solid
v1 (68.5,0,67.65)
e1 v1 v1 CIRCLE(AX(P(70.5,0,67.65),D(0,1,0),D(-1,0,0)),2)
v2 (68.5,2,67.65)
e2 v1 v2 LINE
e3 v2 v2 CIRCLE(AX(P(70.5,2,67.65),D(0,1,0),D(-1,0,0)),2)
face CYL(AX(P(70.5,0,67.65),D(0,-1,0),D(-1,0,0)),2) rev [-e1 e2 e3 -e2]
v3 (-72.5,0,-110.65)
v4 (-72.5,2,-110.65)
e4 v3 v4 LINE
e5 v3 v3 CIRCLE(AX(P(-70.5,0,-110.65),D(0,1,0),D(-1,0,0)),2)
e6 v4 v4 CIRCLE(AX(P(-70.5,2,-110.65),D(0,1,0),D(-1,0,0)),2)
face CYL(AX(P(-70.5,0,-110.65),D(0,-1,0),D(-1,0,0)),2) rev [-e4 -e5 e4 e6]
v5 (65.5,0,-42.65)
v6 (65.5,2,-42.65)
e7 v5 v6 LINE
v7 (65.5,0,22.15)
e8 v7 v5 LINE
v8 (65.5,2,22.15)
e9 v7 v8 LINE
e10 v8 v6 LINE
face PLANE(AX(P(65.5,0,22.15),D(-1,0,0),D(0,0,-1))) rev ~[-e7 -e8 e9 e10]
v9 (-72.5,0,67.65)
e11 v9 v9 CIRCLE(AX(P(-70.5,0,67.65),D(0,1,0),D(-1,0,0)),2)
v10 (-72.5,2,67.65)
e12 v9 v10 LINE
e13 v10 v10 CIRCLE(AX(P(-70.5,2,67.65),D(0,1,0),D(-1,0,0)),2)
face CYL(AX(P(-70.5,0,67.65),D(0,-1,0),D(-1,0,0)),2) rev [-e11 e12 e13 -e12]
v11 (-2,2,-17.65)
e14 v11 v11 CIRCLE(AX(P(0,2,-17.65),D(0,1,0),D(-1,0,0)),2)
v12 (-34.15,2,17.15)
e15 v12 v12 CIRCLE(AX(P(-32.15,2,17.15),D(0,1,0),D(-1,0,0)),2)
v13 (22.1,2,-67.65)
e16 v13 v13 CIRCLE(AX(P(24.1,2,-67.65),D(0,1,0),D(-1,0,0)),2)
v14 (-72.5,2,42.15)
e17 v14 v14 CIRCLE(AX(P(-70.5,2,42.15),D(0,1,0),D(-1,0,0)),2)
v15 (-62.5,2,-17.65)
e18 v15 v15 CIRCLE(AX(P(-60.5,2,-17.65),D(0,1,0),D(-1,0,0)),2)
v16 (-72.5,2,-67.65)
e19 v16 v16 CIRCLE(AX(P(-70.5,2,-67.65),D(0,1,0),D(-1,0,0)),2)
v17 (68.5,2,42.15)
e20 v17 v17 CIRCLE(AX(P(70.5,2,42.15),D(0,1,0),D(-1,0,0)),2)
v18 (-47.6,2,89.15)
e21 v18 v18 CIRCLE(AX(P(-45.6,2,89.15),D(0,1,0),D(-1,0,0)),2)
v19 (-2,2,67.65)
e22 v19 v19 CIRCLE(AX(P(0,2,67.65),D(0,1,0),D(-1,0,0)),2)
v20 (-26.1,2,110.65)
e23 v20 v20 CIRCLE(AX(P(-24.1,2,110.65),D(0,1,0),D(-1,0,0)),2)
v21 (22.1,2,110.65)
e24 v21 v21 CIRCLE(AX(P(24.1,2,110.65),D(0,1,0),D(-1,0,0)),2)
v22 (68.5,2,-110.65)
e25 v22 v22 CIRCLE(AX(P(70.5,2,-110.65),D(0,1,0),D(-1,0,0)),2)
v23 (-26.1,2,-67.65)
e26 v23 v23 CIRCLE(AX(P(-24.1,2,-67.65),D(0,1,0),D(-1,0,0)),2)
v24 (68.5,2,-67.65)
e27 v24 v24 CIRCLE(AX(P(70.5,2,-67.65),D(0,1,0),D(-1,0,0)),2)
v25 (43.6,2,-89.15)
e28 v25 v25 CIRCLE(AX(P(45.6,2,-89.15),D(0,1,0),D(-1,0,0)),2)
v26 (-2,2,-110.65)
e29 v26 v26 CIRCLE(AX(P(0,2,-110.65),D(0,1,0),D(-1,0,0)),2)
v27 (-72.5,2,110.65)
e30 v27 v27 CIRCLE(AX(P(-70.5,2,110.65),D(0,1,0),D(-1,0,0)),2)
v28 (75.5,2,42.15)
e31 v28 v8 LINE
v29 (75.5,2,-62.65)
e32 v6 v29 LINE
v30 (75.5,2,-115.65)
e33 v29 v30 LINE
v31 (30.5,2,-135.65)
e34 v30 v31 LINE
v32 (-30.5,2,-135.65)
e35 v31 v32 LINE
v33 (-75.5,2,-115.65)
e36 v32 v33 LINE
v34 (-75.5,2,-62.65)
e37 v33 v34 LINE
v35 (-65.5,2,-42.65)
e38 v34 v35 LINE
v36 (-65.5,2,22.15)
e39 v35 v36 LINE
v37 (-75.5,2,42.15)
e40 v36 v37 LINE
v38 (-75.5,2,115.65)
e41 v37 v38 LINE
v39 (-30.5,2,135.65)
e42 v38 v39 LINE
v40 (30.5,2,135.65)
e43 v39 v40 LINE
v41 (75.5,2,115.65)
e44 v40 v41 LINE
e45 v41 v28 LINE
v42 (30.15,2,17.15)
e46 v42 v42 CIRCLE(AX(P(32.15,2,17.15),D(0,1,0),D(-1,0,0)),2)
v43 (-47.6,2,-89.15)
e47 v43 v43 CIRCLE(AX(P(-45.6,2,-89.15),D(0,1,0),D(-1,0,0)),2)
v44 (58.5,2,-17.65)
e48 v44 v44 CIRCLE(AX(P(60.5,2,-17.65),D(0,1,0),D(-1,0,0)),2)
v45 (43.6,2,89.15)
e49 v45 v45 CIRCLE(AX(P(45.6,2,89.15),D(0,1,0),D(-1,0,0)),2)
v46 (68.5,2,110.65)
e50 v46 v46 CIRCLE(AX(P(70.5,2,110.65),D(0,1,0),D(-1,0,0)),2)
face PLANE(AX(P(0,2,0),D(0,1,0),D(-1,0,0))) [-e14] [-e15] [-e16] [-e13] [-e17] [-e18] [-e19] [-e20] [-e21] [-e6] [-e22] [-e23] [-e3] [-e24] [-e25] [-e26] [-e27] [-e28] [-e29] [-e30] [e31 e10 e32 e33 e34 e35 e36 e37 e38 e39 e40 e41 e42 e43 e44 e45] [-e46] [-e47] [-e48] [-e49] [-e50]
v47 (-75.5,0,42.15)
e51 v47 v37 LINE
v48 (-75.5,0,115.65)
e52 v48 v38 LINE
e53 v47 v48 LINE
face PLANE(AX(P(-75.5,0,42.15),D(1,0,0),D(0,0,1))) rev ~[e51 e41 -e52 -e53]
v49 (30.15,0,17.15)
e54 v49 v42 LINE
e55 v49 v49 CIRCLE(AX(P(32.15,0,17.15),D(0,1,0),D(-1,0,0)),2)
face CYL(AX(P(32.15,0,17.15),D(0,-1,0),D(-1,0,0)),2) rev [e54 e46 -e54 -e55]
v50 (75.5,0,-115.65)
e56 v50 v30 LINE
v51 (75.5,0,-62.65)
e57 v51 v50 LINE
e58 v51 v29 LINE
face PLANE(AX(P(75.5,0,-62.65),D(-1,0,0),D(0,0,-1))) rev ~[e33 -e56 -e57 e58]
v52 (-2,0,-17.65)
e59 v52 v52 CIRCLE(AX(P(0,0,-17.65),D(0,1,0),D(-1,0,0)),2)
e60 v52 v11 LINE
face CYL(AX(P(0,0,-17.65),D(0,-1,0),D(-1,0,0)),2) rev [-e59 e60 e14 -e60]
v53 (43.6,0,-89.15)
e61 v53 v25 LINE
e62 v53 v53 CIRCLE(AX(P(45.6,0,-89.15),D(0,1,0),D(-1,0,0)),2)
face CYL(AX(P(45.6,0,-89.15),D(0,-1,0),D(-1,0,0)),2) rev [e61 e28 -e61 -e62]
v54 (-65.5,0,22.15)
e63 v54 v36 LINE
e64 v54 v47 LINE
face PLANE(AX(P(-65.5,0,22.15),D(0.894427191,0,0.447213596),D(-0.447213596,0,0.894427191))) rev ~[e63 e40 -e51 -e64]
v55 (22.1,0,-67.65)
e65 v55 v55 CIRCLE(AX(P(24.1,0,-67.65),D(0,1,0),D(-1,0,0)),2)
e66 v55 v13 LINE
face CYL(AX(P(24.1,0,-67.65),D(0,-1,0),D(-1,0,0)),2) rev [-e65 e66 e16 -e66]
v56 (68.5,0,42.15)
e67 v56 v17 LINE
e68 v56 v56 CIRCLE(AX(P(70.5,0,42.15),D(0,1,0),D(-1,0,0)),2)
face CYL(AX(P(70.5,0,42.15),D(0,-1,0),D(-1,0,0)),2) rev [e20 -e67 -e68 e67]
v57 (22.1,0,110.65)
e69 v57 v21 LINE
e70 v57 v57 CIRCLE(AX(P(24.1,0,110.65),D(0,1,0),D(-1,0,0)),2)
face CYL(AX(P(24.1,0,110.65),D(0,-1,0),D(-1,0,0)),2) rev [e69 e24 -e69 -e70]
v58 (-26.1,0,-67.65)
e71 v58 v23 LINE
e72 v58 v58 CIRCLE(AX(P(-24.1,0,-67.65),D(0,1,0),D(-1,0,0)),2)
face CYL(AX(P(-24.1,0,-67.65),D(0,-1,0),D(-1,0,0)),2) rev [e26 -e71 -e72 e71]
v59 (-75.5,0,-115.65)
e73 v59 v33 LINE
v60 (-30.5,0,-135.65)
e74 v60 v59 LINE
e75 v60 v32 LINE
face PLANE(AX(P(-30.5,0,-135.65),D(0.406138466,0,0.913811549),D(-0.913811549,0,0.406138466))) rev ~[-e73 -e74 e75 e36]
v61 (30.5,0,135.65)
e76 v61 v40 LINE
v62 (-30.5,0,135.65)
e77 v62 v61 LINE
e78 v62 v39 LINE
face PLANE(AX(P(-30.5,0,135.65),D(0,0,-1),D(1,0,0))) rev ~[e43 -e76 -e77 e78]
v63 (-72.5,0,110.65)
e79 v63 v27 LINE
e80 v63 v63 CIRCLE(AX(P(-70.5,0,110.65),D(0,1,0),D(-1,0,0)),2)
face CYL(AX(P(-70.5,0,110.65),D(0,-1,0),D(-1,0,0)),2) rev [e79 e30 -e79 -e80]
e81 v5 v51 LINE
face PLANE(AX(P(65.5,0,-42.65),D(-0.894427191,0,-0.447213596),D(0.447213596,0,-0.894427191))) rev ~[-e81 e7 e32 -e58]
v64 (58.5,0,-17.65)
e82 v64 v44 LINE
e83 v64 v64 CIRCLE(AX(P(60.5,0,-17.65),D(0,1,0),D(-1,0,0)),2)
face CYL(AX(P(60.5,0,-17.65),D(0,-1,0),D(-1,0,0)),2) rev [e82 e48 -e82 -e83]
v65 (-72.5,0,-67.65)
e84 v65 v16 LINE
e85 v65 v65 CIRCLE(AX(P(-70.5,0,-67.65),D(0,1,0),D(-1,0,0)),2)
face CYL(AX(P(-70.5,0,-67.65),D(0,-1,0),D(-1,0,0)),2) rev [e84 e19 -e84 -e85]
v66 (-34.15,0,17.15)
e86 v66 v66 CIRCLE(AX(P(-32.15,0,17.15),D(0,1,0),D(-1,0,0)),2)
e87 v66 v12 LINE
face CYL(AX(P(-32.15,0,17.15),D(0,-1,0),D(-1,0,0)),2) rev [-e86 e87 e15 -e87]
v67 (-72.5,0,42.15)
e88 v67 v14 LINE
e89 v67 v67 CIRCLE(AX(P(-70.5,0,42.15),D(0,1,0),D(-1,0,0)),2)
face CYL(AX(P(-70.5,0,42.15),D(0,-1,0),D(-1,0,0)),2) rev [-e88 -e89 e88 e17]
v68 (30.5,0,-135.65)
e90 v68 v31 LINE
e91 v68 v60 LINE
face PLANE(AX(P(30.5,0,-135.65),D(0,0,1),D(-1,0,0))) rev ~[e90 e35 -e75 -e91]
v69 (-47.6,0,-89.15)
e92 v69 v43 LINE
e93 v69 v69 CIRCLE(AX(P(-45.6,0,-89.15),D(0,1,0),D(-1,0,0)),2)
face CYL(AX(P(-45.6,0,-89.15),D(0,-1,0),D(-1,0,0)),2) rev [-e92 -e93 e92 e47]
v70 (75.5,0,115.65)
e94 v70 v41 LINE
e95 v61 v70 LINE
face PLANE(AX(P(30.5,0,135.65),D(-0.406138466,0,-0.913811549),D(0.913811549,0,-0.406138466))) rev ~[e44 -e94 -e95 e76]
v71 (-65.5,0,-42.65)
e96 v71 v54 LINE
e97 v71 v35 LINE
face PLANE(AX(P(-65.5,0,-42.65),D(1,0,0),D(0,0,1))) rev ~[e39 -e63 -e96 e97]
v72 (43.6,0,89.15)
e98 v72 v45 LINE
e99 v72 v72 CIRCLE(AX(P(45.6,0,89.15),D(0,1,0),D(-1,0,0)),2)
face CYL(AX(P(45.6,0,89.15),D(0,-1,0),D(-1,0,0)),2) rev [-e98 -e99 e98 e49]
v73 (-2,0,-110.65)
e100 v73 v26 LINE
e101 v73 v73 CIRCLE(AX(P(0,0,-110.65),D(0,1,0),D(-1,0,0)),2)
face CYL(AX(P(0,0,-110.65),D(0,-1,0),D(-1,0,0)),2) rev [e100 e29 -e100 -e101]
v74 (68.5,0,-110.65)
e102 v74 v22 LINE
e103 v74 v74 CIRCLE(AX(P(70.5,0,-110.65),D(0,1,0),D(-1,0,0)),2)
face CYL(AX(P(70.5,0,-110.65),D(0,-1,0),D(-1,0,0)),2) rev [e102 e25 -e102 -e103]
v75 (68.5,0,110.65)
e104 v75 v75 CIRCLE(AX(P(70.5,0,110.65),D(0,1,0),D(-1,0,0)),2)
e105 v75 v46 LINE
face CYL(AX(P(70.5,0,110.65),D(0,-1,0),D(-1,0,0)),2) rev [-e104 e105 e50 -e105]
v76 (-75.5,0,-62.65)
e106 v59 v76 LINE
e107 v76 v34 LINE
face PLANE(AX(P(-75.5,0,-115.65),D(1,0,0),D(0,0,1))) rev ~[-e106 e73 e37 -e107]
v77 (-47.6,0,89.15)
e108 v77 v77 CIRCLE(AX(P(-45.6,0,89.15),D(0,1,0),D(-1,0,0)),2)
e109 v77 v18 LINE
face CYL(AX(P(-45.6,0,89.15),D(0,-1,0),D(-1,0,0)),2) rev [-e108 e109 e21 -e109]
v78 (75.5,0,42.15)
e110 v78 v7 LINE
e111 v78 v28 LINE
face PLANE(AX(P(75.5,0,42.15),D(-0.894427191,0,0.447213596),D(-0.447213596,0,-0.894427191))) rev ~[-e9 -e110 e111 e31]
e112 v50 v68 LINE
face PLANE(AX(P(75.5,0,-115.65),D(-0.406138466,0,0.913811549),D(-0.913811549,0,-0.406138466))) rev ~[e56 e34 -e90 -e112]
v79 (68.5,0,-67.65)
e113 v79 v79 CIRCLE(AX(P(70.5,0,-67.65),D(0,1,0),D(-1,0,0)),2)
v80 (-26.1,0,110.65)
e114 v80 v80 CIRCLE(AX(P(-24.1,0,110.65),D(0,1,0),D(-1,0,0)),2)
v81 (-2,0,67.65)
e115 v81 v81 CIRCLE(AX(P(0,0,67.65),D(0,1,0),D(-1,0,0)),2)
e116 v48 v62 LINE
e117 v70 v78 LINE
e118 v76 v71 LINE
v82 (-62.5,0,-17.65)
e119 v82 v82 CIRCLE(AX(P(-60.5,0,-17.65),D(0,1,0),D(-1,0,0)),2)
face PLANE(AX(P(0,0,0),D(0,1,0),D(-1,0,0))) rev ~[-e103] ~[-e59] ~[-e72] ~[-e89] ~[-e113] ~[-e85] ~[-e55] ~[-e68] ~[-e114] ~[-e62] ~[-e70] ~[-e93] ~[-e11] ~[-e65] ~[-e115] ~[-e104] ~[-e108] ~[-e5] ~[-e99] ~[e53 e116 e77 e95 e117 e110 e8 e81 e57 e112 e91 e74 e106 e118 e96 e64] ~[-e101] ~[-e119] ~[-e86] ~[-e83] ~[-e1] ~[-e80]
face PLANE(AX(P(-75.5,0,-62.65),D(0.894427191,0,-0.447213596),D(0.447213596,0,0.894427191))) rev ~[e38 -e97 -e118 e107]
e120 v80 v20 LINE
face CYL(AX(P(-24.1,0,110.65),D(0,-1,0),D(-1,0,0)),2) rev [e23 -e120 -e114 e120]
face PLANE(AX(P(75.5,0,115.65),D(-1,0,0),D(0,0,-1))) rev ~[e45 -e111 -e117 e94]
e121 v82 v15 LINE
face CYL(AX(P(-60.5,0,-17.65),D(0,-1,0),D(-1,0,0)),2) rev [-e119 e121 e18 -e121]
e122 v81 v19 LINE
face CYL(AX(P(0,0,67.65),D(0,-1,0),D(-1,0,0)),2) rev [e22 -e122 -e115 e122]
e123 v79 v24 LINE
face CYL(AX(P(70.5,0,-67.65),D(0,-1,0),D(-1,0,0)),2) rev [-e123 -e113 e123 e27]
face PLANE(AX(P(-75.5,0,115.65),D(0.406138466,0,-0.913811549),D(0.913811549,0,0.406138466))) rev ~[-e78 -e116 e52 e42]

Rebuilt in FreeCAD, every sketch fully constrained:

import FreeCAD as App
import Part
import Sketcher
Q = App.Units.Quantity

doc = App.newDocument("Part")
body = doc.addObject("PartDesign::Body", "Body")

sketch1 = body.newObject("Sketcher::SketchObject", "Sketch")
sketch1.AttachmentSupport = (doc.getObject("XZ_Plane"), [""])
sketch1.MapMode = "FlatFace"
sketch1.addGeometry([
    Part.LineSegment(App.Vector(-30.5, -135.7, 0), App.Vector(-75.5, -115.7, 0)),
    Part.LineSegment(App.Vector(-75.5, -115.7, 0), App.Vector(-75.5, -62.6, 0)),
    Part.LineSegment(App.Vector(-75.5, -62.6, 0), App.Vector(-65.5, -42.6, 0)),
    Part.LineSegment(App.Vector(-65.5, -42.6, 0), App.Vector(-65.5, 22.1, 0)),
    Part.LineSegment(App.Vector(-65.5, 22.1, 0), App.Vector(-75.5, 42.1, 0)),
    Part.LineSegment(App.Vector(-75.5, 42.1, 0), App.Vector(-75.5, 115.7, 0)),
    Part.LineSegment(App.Vector(-75.5, 115.7, 0), App.Vector(-30.5, 135.7, 0)),
    Part.LineSegment(App.Vector(-30.5, 135.7, 0), App.Vector(30.5, 135.7, 0)),
    Part.LineSegment(App.Vector(30.5, 135.7, 0), App.Vector(75.5, 115.7, 0)),
    Part.LineSegment(App.Vector(75.5, 115.7, 0), App.Vector(75.5, 42.1, 0)),
    Part.LineSegment(App.Vector(75.5, 42.1, 0), App.Vector(65.5, 22.1, 0)),
    Part.LineSegment(App.Vector(65.5, 22.1, 0), App.Vector(65.5, -42.6, 0)),
    Part.LineSegment(App.Vector(65.5, -42.6, 0), App.Vector(75.5, -62.6, 0)),
    Part.LineSegment(App.Vector(75.5, -62.6, 0), App.Vector(75.5, -115.7, 0)),
    Part.LineSegment(App.Vector(75.5, -115.7, 0), App.Vector(30.5, -135.7, 0)),
    Part.LineSegment(App.Vector(30.5, -135.7, 0), App.Vector(-30.5, -135.7, 0)),
    Part.Circle(App.Vector(70.5, -110.7, 0), App.Vector(0, 0, 1), 2),
    Part.Circle(App.Vector(45.6, -89.2, 0), App.Vector(0, 0, 1), 2),
    Part.Circle(App.Vector(70.5, -67.7, 0), App.Vector(0, 0, 1), 2),
    Part.Circle(App.Vector(60.5, -17.6, 0), App.Vector(0, 0, 1), 2),
    Part.Circle(App.Vector(24.1, -67.7, 0), App.Vector(0, 0, 1), 2),
    Part.Circle(App.Vector(0, -110.7, 0), App.Vector(0, 0, 1), 2),
    Part.Circle(App.Vector(-70.5, -110.7, 0), App.Vector(0, 0, 1), 2),
    Part.Circle(App.Vector(-45.6, -89.2, 0), App.Vector(0, 0, 1), 2),
    Part.Circle(App.Vector(-24.1, -67.7, 0), App.Vector(0, 0, 1), 2),
    Part.Circle(App.Vector(0, -17.6, 0), App.Vector(0, 0, 1), 2),
    Part.Circle(App.Vector(-70.5, -67.7, 0), App.Vector(0, 0, 1), 2),
    Part.Circle(App.Vector(-60.5, -17.6, 0), App.Vector(0, 0, 1), 2),
    Part.Circle(App.Vector(70.5, 42.1, 0), App.Vector(0, 0, 1), 2),
    Part.Circle(App.Vector(70.5, 67.7, 0), App.Vector(0, 0, 1), 2),
    Part.Circle(App.Vector(32.1, 17.1, 0), App.Vector(0, 0, 1), 2),
    Part.Circle(App.Vector(45.6, 89.2, 0), App.Vector(0, 0, 1), 2),
    Part.Circle(App.Vector(70.5, 110.7, 0), App.Vector(0, 0, 1), 2),
    Part.Circle(App.Vector(24.1, 110.7, 0), App.Vector(0, 0, 1), 2),
    Part.Circle(App.Vector(-32.1, 17.1, 0), App.Vector(0, 0, 1), 2),
    Part.Circle(App.Vector(0, 67.7, 0), App.Vector(0, 0, 1), 2),
    Part.Circle(App.Vector(-70.5, 42.1, 0), App.Vector(0, 0, 1), 2),
    Part.Circle(App.Vector(-70.5, 67.7, 0), App.Vector(0, 0, 1), 2),
    Part.Circle(App.Vector(-24.1, 110.7, 0), App.Vector(0, 0, 1), 2),
    Part.Circle(App.Vector(-45.6, 89.2, 0), App.Vector(0, 0, 1), 2),
    Part.Circle(App.Vector(-70.5, 110.7, 0), App.Vector(0, 0, 1), 2),
], False)
sketch1.addConstraint([
    Sketcher.Constraint("Coincident", 0, 2, 1, 1),
    Sketcher.Constraint("Coincident", 1, 2, 2, 1),
    Sketcher.Constraint("Coincident", 2, 2, 3, 1),
    Sketcher.Constraint("Coincident", 3, 2, 4, 1),
    Sketcher.Constraint("Coincident", 4, 2, 5, 1),
    Sketcher.Constraint("Coincident", 5, 2, 6, 1),
    Sketcher.Constraint("Coincident", 6, 2, 7, 1),
    Sketcher.Constraint("Coincident", 7, 2, 8, 1),
    Sketcher.Constraint("Coincident", 8, 2, 9, 1),
    Sketcher.Constraint("Coincident", 9, 2, 10, 1),
    Sketcher.Constraint("Coincident", 10, 2, 11, 1),
    Sketcher.Constraint("Coincident", 11, 2, 12, 1),
    Sketcher.Constraint("Coincident", 12, 2, 13, 1),
    Sketcher.Constraint("Coincident", 13, 2, 14, 1),
    Sketcher.Constraint("Coincident", 14, 2, 15, 1),
    Sketcher.Constraint("Coincident", 15, 2, 0, 1),
    Sketcher.Constraint("Vertical", 1),
    Sketcher.Constraint("Vertical", 3),
    Sketcher.Constraint("Vertical", 5),
    Sketcher.Constraint("Horizontal", 7),
    Sketcher.Constraint("Vertical", 9),
    Sketcher.Constraint("Vertical", 11),
    Sketcher.Constraint("Vertical", 13),
    Sketcher.Constraint("Horizontal", 15),
    Sketcher.Constraint("Equal", 16, 17),
    Sketcher.Constraint("Equal", 17, 18),
    Sketcher.Constraint("Equal", 18, 19),
    Sketcher.Constraint("Equal", 19, 20),
    Sketcher.Constraint("Equal", 20, 21),
    Sketcher.Constraint("Equal", 21, 22),
    Sketcher.Constraint("Equal", 22, 23),
    Sketcher.Constraint("Equal", 23, 24),
    Sketcher.Constraint("Equal", 24, 25),
    Sketcher.Constraint("Equal", 25, 26),
    Sketcher.Constraint("Equal", 26, 27),
    Sketcher.Constraint("Equal", 27, 28),
    Sketcher.Constraint("Equal", 28, 29),
    Sketcher.Constraint("Equal", 29, 30),
    Sketcher.Constraint("Equal", 30, 31),
    Sketcher.Constraint("Equal", 31, 32),
    Sketcher.Constraint("Equal", 32, 33),
    Sketcher.Constraint("Equal", 33, 34),
    Sketcher.Constraint("Equal", 34, 35),
    Sketcher.Constraint("Equal", 35, 36),
    Sketcher.Constraint("Equal", 36, 37),
    Sketcher.Constraint("Equal", 37, 38),
    Sketcher.Constraint("Equal", 38, 39),
    Sketcher.Constraint("Equal", 39, 40),
    Sketcher.Constraint("Symmetric", 26, 3, 29, 3, -1, 1),
    Sketcher.Constraint("Symmetric", 23, 3, 31, 3, -1, 1),
    Sketcher.Constraint("Symmetric", 22, 3, 32, 3, -1, 1),
    Sketcher.Constraint("Symmetric", 18, 3, 37, 3, -1, 1),
    Sketcher.Constraint("Symmetric", 17, 3, 39, 3, -1, 1),
    Sketcher.Constraint("Symmetric", 16, 3, 40, 3, -1, 1),
    Sketcher.Constraint("Symmetric", 0, 2, 8, 2, -1, 1),
    Sketcher.Constraint("Symmetric", 5, 2, 13, 2, -1, 1),
    Sketcher.Constraint("Symmetric", 6, 2, 14, 2, -1, 1),
    Sketcher.Constraint("Symmetric", 16, 3, 22, 3, -2),
    Sketcher.Constraint("Symmetric", 17, 3, 23, 3, -2),
    Sketcher.Constraint("Symmetric", 20, 3, 24, 3, -2),
    Sketcher.Constraint("Symmetric", 18, 3, 26, 3, -2),
    Sketcher.Constraint("Symmetric", 19, 3, 27, 3, -2),
    Sketcher.Constraint("Symmetric", 30, 3, 34, 3, -2),
    Sketcher.Constraint("Symmetric", 28, 3, 36, 3, -2),
    Sketcher.Constraint("Symmetric", 33, 3, 38, 3, -2),
    Sketcher.Constraint("Symmetric", 5, 2, 8, 2, -2),
    Sketcher.Constraint("Symmetric", 3, 2, 10, 2, -2),
    Sketcher.Constraint("PointOnObject", 21, 3, -2),
    Sketcher.Constraint("PointOnObject", 25, 3, -2),
    Sketcher.Constraint("PointOnObject", 35, 3, -2),
    Sketcher.Constraint("Parallel", 0, 8),
    Sketcher.Constraint("Parallel", 2, 10),
    Sketcher.Constraint("Parallel", 4, 12),
    Sketcher.Constraint("Horizontal", 18, 3, 20, 3),
    Sketcher.Constraint("Horizontal", 16, 3, 21, 3),
    Sketcher.Constraint("Horizontal", 19, 3, 25, 3),
    Sketcher.Constraint("Horizontal", 32, 3, 33, 3),
    Sketcher.Constraint("Horizontal", 29, 3, 35, 3),
    Sketcher.Constraint("Horizontal", 36, 3, 4, 2),
    Sketcher.Constraint("Horizontal", 4, 2, 9, 2),
    Sketcher.Constraint("Horizontal", 2, 2, 11, 2),
    Sketcher.Constraint("Vertical", 16, 3, 18, 3),
    Sketcher.Constraint("Vertical", 18, 3, 28, 3),
    Sketcher.Constraint("Vertical", 20, 3, 33, 3),
    Sketcher.Constraint("Vertical", 7, 2, 14, 2),
    Sketcher.Constraint("Diameter", 16, Q("4 mm")),
    Sketcher.Constraint("DistanceX", 7, 1, 7, 2, Q("61 mm")),
    Sketcher.Constraint("DistanceY", 1, 1, 1, 2, Q("53 mm")),
    Sketcher.Constraint("DistanceY", 3, 1, 3, 2, Q("64.8 mm")),
    Sketcher.Constraint("DistanceY", 5, 1, 5, 2, Q("73.5 mm")),
    Sketcher.Constraint("DistanceY", 16, 3, 18, 3, Q("43 mm")),
    Sketcher.Constraint("DistanceX", 19, 3, 18, 3, Q("10 mm")),
    Sketcher.Constraint("DistanceY", 18, 3, 19, 3, Q("50 mm")),
    Sketcher.Constraint("DistanceX", 22, 3, 16, 3, Q("141 mm")),
    Sketcher.Constraint("DistanceY", 30, 3, 28, 3, Q("25 mm")),
    Sketcher.Constraint("DistanceY", 28, 3, 31, 3, Q("47 mm")),
    Sketcher.Constraint("DistanceX", 0, 2, 22, 3, Q("5 mm")),
    Sketcher.Constraint("DistanceY", 0, 2, 22, 3, Q("5 mm")),
    Sketcher.Constraint("DistanceX", 1, 2, 2, 2, Q("10 mm")),
    Sketcher.Constraint("DistanceY", 1, 2, 2, 2, Q("20 mm")),
    Sketcher.Constraint("DistanceY", 38, 3, 6, 2, Q("25 mm")),
    Sketcher.Constraint("DistanceX", -1, 1, 17, 3, Q("45.6 mm")),
    Sketcher.Constraint("DistanceX", -1, 1, 20, 3, Q("24.1 mm")),
    Sketcher.Constraint("DistanceX", 34, 3, 30, 3, Q("64.3 mm")),
])
pad1 = body.newObject("PartDesign::Pad", "Pad")
pad1.Profile = sketch1
pad1.Length = 2
pad1.Reversed = True

doc.recompute()
